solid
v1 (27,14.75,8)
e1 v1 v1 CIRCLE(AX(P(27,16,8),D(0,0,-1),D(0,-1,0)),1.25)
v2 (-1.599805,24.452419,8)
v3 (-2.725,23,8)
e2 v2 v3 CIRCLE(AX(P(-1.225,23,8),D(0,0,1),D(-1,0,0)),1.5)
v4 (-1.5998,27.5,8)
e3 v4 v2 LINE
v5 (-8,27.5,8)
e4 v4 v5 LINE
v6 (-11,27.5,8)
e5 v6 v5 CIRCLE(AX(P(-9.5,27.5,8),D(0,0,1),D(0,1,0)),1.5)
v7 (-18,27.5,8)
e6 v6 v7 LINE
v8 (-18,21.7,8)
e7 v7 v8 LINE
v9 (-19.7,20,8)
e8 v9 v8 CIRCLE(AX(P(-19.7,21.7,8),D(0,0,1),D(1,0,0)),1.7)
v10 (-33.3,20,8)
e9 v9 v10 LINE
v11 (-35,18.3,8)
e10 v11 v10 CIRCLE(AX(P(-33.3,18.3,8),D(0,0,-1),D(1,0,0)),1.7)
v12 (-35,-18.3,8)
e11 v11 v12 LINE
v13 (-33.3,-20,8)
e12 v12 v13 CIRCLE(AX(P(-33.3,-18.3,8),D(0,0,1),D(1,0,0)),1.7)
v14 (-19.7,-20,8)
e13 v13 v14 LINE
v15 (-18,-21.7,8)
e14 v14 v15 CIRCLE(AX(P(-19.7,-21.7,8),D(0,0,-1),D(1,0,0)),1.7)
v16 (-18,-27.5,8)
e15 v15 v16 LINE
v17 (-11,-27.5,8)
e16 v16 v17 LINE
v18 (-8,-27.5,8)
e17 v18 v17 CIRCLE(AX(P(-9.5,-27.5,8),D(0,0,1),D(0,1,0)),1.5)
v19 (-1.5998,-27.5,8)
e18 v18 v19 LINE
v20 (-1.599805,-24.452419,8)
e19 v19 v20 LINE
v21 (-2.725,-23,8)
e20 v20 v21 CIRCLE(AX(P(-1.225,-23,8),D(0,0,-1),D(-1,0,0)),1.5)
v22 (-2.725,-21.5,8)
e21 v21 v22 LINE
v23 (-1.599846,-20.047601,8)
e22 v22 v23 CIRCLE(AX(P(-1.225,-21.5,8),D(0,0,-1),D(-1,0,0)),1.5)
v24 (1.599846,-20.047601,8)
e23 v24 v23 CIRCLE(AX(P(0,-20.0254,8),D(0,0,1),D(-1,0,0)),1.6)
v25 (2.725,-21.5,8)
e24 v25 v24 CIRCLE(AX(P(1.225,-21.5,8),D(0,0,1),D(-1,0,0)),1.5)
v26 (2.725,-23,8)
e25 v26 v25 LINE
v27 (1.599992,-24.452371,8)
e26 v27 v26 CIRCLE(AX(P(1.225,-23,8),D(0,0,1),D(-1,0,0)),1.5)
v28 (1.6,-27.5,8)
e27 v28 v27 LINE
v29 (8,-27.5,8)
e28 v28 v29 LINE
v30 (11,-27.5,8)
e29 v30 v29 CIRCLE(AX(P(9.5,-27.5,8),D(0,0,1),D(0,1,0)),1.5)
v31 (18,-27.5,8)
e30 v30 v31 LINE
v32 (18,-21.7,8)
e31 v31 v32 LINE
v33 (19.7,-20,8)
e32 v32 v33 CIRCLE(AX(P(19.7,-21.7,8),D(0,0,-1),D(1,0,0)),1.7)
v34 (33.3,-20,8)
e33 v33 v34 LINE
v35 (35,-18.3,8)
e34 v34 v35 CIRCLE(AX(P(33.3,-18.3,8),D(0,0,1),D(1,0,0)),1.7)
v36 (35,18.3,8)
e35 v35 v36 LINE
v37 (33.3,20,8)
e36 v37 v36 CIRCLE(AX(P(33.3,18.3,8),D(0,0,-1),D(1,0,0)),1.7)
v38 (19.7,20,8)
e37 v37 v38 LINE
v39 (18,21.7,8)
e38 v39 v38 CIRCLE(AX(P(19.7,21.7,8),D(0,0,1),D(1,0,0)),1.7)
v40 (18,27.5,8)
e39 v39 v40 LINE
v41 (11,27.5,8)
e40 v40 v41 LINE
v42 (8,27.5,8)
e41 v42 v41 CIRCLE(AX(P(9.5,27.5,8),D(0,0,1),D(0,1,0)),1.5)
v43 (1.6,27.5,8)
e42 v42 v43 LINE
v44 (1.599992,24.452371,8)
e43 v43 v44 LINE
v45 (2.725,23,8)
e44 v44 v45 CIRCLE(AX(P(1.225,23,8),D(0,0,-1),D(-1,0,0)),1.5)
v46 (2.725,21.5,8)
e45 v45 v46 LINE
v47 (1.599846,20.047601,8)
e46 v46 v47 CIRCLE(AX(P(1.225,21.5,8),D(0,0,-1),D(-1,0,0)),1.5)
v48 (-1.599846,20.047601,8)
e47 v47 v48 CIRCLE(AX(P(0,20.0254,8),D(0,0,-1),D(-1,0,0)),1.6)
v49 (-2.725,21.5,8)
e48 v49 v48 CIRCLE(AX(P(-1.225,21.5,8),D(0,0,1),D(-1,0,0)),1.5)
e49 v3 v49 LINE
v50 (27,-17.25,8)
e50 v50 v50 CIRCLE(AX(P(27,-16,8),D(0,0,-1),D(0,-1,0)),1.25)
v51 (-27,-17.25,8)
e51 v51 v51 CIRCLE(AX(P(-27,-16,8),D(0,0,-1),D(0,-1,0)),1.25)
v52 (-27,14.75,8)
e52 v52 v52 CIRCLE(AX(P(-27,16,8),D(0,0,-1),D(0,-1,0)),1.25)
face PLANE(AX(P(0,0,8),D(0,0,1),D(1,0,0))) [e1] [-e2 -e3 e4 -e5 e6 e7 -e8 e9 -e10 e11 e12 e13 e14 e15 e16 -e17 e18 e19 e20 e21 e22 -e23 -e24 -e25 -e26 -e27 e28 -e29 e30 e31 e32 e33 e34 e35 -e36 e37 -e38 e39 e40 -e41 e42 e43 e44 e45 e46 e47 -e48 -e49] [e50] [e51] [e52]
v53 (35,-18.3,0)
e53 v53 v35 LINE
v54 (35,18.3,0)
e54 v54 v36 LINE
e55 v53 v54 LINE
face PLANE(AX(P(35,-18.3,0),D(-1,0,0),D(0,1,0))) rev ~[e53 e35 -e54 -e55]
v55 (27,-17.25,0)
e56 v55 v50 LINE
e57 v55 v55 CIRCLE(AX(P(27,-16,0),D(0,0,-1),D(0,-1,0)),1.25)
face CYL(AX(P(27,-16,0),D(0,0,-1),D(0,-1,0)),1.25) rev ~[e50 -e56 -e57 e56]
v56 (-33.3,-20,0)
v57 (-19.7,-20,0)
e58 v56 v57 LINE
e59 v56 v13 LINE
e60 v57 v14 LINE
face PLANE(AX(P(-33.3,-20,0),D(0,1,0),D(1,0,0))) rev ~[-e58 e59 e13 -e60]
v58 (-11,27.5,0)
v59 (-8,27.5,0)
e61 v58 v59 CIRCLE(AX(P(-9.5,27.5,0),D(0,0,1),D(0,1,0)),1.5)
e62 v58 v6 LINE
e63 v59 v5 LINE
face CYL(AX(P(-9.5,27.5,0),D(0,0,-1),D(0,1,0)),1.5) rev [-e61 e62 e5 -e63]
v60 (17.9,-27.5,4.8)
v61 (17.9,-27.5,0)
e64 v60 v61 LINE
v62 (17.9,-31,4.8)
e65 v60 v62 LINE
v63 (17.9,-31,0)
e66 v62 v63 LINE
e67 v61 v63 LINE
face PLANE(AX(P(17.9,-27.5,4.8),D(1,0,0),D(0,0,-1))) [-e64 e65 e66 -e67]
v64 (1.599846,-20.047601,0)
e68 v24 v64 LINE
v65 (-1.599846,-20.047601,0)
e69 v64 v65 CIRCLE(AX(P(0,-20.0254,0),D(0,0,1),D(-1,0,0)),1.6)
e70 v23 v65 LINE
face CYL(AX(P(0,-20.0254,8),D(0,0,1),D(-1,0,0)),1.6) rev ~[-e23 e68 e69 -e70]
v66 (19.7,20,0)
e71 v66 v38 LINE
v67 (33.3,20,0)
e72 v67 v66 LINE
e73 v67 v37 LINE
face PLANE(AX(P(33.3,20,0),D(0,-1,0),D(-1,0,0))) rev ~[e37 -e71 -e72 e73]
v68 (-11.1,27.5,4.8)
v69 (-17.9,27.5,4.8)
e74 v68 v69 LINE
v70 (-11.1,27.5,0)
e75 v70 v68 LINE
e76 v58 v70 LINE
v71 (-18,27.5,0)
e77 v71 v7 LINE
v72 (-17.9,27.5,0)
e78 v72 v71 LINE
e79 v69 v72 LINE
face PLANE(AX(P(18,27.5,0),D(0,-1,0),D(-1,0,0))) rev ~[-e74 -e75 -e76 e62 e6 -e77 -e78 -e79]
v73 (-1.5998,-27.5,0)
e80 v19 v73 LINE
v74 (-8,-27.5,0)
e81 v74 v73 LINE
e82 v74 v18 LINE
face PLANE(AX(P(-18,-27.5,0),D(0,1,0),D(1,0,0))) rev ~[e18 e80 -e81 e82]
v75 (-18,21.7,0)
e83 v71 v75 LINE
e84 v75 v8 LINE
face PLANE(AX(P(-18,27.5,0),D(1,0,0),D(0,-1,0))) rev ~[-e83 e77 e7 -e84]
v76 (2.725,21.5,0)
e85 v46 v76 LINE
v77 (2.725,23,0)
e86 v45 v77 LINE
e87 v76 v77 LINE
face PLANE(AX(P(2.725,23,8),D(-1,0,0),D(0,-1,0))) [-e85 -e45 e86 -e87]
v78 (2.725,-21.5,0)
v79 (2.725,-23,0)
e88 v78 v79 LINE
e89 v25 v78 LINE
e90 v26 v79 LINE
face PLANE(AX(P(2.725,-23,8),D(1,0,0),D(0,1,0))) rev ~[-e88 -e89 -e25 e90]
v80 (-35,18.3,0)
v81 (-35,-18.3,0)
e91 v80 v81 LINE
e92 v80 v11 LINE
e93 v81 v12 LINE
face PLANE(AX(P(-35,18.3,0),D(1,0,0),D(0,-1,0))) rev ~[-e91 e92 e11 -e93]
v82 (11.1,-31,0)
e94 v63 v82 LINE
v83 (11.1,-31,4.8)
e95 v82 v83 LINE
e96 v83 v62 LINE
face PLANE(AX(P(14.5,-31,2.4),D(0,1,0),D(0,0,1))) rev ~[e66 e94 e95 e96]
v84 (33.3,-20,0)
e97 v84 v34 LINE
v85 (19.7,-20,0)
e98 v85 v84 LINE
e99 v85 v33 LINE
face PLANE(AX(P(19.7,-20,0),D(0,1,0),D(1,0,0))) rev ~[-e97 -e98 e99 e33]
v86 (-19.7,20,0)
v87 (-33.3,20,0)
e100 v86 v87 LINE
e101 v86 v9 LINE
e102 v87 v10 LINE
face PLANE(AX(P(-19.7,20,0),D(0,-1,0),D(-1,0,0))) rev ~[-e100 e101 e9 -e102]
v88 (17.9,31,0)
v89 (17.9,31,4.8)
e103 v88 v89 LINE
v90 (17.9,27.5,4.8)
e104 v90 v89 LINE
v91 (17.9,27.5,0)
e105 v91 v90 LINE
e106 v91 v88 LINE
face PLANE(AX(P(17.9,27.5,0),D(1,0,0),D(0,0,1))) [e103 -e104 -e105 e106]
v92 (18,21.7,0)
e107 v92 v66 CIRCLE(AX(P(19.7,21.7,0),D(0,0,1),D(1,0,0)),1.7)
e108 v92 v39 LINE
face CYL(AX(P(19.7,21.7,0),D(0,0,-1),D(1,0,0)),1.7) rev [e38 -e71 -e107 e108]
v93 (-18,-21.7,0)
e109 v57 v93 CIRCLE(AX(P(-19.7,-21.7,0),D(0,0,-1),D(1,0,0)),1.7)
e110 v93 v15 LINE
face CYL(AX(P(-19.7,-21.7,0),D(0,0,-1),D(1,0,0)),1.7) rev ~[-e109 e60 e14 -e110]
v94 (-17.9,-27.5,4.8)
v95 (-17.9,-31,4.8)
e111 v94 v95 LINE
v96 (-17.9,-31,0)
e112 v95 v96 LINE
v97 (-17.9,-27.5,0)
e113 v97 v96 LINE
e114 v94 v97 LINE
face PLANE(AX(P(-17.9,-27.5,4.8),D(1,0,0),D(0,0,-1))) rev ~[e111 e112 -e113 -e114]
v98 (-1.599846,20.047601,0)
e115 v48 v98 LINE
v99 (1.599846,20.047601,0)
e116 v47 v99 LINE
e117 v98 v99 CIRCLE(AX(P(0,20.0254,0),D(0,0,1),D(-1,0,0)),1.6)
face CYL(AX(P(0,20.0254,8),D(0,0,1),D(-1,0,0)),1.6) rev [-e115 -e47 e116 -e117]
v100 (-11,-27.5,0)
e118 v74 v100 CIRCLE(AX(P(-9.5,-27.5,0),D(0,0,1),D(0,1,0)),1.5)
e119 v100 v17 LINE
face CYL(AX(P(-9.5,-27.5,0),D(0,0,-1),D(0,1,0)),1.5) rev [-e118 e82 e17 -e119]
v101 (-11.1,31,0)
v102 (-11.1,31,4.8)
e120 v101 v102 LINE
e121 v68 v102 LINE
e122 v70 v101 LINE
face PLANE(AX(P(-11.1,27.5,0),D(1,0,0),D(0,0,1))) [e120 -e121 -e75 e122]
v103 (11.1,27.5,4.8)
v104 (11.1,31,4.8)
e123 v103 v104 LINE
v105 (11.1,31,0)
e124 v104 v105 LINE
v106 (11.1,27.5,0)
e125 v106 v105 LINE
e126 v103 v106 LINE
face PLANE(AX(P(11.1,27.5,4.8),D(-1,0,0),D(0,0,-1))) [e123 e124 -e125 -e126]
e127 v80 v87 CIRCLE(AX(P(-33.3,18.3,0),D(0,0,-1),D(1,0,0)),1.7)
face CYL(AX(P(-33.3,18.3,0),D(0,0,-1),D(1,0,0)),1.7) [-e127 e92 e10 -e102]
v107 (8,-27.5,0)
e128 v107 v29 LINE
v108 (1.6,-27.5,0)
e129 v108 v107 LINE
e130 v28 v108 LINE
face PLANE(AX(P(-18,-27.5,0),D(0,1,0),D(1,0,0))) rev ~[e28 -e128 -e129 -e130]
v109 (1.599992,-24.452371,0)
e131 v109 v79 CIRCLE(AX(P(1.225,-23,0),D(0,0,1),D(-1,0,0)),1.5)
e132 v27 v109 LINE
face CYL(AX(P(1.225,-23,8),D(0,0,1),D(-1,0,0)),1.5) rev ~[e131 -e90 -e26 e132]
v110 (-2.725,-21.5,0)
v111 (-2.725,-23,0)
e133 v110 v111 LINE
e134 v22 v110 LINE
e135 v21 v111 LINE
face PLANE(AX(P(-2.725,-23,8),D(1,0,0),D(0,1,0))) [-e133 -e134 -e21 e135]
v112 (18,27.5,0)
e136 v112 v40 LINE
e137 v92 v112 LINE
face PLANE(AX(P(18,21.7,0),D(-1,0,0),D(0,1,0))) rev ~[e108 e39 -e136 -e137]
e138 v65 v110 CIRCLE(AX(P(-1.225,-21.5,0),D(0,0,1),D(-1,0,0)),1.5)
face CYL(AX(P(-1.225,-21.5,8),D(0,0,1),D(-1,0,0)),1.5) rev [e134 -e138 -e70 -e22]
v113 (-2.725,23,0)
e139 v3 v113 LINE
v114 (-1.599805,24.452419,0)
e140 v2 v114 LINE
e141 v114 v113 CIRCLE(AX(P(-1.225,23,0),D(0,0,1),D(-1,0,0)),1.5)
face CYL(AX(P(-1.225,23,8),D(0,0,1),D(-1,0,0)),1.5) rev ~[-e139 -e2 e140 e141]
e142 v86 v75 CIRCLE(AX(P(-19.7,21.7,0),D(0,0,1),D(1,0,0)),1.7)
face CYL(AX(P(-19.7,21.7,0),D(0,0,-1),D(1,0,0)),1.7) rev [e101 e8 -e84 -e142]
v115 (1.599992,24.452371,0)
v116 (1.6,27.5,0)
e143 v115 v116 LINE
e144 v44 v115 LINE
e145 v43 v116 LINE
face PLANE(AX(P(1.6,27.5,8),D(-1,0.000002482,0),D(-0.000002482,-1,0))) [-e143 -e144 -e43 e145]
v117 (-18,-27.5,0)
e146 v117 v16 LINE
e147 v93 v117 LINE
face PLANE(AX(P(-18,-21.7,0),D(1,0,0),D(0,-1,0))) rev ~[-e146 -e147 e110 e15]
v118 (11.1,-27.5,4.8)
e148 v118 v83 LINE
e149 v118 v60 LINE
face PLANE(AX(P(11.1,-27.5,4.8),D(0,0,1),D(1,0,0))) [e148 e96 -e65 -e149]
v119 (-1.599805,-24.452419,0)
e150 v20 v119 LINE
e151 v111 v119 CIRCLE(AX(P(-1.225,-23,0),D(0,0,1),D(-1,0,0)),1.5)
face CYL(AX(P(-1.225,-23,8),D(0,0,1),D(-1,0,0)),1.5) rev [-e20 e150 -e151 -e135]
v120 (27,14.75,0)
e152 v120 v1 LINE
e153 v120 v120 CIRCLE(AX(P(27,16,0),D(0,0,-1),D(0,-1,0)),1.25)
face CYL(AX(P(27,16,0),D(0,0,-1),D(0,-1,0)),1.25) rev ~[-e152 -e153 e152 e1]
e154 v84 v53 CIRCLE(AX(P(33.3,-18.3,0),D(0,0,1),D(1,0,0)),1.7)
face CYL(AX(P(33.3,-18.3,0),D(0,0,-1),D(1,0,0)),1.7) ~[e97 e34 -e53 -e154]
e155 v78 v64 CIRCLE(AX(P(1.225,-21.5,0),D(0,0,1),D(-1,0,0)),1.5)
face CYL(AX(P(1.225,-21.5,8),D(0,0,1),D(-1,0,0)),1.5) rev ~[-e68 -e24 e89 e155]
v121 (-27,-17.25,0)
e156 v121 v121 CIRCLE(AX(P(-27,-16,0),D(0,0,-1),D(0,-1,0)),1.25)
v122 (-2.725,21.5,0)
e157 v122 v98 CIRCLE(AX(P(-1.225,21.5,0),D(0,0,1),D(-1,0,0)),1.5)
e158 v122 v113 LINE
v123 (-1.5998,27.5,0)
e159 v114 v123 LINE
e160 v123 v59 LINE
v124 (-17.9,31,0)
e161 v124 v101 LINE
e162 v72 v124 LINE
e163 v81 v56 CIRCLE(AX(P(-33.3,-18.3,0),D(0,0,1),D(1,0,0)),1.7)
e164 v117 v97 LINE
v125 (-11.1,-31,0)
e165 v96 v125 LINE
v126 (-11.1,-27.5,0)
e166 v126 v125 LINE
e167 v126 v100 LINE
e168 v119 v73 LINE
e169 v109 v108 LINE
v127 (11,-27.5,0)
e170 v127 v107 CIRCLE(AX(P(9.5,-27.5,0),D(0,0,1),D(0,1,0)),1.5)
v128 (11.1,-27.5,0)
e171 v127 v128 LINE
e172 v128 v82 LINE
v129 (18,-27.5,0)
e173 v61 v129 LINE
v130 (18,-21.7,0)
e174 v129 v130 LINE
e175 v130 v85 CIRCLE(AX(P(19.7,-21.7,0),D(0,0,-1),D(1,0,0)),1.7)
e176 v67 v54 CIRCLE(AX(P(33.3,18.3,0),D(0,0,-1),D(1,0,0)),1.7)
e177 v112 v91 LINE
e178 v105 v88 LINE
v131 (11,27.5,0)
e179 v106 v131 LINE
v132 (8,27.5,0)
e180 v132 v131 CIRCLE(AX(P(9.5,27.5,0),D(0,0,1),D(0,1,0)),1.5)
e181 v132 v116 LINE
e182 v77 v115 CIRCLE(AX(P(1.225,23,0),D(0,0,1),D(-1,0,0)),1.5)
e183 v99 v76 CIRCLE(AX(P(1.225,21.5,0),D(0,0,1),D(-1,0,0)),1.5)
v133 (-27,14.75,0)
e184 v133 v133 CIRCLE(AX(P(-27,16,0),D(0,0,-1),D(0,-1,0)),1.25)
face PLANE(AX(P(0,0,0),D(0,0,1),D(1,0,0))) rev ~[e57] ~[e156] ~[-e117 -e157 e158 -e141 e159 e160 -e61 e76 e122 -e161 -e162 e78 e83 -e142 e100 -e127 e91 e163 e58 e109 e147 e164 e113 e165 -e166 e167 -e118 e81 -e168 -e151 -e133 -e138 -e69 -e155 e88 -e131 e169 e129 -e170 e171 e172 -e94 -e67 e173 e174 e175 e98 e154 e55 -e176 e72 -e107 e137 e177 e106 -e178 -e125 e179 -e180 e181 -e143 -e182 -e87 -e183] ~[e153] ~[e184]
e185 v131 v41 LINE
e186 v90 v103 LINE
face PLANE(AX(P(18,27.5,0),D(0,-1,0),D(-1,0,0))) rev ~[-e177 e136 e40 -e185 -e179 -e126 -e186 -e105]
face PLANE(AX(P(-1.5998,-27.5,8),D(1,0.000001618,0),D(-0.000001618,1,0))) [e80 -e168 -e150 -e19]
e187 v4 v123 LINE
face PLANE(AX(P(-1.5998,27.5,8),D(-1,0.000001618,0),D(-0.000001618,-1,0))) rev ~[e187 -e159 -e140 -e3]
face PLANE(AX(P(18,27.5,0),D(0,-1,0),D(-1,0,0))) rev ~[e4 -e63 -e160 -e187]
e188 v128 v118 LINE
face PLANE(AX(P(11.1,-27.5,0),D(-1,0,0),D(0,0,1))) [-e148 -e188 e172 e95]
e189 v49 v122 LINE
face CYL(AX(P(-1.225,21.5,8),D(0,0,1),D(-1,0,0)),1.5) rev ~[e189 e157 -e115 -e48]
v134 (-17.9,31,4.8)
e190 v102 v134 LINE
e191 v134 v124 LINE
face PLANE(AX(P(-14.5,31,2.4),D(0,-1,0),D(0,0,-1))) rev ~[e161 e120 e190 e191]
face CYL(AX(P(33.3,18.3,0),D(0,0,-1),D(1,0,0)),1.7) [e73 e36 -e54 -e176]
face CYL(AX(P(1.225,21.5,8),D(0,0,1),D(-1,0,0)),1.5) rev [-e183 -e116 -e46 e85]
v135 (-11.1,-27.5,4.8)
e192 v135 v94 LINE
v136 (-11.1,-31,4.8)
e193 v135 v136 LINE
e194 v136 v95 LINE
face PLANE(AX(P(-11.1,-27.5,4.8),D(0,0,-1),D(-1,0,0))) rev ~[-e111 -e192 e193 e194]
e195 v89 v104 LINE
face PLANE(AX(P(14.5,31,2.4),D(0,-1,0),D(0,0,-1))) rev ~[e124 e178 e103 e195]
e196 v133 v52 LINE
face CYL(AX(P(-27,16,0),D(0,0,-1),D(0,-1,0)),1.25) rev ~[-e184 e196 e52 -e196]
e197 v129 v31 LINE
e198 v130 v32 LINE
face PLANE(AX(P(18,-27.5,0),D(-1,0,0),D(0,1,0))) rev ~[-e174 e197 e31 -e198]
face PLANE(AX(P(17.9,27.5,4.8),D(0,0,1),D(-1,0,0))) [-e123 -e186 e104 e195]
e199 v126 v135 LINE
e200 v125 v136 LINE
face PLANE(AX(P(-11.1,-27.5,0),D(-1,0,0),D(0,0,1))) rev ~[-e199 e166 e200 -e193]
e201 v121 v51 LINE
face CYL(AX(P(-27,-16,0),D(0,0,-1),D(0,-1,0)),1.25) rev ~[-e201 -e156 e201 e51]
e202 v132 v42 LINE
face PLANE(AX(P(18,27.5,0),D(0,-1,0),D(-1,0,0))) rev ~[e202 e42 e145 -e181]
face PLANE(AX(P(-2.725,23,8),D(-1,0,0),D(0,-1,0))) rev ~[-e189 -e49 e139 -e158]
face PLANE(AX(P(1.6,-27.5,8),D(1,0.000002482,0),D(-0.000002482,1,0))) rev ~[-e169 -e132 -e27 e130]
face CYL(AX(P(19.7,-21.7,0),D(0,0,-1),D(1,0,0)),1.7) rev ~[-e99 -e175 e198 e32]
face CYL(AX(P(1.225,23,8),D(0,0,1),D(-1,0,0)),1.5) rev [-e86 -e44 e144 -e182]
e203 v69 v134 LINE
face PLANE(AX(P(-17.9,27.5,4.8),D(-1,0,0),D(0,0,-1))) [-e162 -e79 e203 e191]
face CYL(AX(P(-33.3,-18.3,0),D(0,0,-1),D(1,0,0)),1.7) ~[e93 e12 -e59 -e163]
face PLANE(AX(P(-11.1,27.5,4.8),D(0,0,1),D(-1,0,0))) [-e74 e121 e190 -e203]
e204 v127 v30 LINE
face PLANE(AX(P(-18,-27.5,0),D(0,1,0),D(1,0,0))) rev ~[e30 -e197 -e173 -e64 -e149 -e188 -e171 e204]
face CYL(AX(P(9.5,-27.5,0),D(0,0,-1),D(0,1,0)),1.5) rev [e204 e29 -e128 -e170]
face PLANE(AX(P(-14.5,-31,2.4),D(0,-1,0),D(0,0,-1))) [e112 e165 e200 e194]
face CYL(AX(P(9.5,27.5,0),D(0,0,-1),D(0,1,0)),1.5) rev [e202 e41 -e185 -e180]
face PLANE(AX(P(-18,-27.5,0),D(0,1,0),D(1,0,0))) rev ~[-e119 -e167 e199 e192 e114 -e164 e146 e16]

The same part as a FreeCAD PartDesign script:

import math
import FreeCAD as App
import Part
import Sketcher

V = App.Vector
Q = App.Units.Quantity

doc = App.newDocument("Part")
body = doc.addObject("PartDesign::Body", "Body")

sketch1 = body.newObject("Sketcher::SketchObject", "Sketch")
sketch1.AttachmentSupport = (doc.getObject("XY_Plane"), [""])
sketch1.MapMode = "FlatFace"
sketch1.addGeometry(Part.LineSegment(V(-18, -21.7, 0), V(-18, -27.5, 0)), False)
sketch1.addGeometry(Part.LineSegment(V(-18, -27.5, 0), V(18, -27.5, 0)), False)
sketch1.addGeometry(Part.LineSegment(V(18, -27.5, 0), V(18, -21.7, 0)), False)
sketch1.addGeometry(Part.ArcOfCircle(Part.Circle(V(19.7, -21.7, 0), V(0, 0, 1), 1.7), math.radians(90), math.radians(180)), False)
sketch1.addGeometry(Part.LineSegment(V(19.7, -20, 0), V(33.3, -20, 0)), False)
sketch1.addGeometry(Part.ArcOfCircle(Part.Circle(V(33.3, -18.3, 0), V(0, 0, 1), 1.7), math.radians(-90), math.radians(0)), False)
sketch1.addGeometry(Part.LineSegment(V(35, -18.3, 0), V(35, 18.3, 0)), False)
sketch1.addGeometry(Part.ArcOfCircle(Part.Circle(V(33.3, 18.3, 0), V(0, 0, 1), 1.7), math.radians(0), math.radians(90)), False)
sketch1.addGeometry(Part.LineSegment(V(33.3, 20, 0), V(19.7, 20, 0)), False)
sketch1.addGeometry(Part.ArcOfCircle(Part.Circle(V(19.7, 21.7, 0), V(0, 0, 1), 1.7), math.radians(180), math.radians(270)), False)
sketch1.addGeometry(Part.LineSegment(V(18, 21.7, 0), V(18, 27.5, 0)), False)
sketch1.addGeometry(Part.LineSegment(V(18, 27.5, 0), V(-18, 27.5, 0)), False)
sketch1.addGeometry(Part.LineSegment(V(-18, 27.5, 0), V(-18, 21.7, 0)), False)
sketch1.addGeometry(Part.ArcOfCircle(Part.Circle(V(-19.7, 21.7, 0), V(0, 0, 1), 1.7), math.radians(-90), math.radians(0)), False)
sketch1.addGeometry(Part.LineSegment(V(-19.7, 20, 0), V(-33.3, 20, 0)), False)
sketch1.addGeometry(Part.ArcOfCircle(Part.Circle(V(-33.3, 18.3, 0), V(0, 0, 1), 1.7), math.radians(90), math.radians(180)), False)
sketch1.addGeometry(Part.LineSegment(V(-35, 18.3, 0), V(-35, -18.3, 0)), False)
sketch1.addGeometry(Part.ArcOfCircle(Part.Circle(V(-33.3, -18.3, 0), V(0, 0, 1), 1.7), math.radians(180), math.radians(270)), False)
sketch1.addGeometry(Part.LineSegment(V(-33.3, -20, 0), V(-19.7, -20, 0)), False)
sketch1.addGeometry(Part.ArcOfCircle(Part.Circle(V(-19.7, -21.7, 0), V(0, 0, 1), 1.7), math.radians(0), math.radians(90)), False)
sketch1.addConstraint(Sketcher.Constraint("Coincident", 0, 2, 1, 1))
sketch1.addConstraint(Sketcher.Constraint("Coincident", 1, 2, 2, 1))
sketch1.addConstraint(Sketcher.Constraint("Tangent", 2, 2, 3, 2))
sketch1.addConstraint(Sketcher.Constraint("Tangent", 3, 1, 4, 1))
sketch1.addConstraint(Sketcher.Constraint("Tangent", 4, 2, 5, 1))
sketch1.addConstraint(Sketcher.Constraint("Tangent", 5, 2, 6, 1))
sketch1.addConstraint(Sketcher.Constraint("Tangent", 6, 2, 7, 1))
sketch1.addConstraint(Sketcher.Constraint("Tangent", 7, 2, 8, 1))
sketch1.addConstraint(Sketcher.Constraint("Tangent", 8, 2, 9, 2))
sketch1.addConstraint(Sketcher.Constraint("Tangent", 9, 1, 10, 1))
sketch1.addConstraint(Sketcher.Constraint("Coincident", 10, 2, 11, 1))
sketch1.addConstraint(Sketcher.Constraint("Coincident", 11, 2, 12, 1))
sketch1.addConstraint(Sketcher.Constraint("Tangent", 12, 2, 13, 2))
sketch1.addConstraint(Sketcher.Constraint("Tangent", 13, 1, 14, 1))
sketch1.addConstraint(Sketcher.Constraint("Tangent", 14, 2, 15, 1))
sketch1.addConstraint(Sketcher.Constraint("Tangent", 15, 2, 16, 1))
sketch1.addConstraint(Sketcher.Constraint("Tangent", 16, 2, 17, 1))
sketch1.addConstraint(Sketcher.Constraint("Tangent", 17, 2, 18, 1))
sketch1.addConstraint(Sketcher.Constraint("Tangent", 18, 2, 19, 2))
sketch1.addConstraint(Sketcher.Constraint("Tangent", 19, 1, 0, 1))
sketch1.addConstraint(Sketcher.Constraint("Vertical", 0))
sketch1.addConstraint(Sketcher.Constraint("Horizontal", 1))
sketch1.addConstraint(Sketcher.Constraint("Vertical", 2))
sketch1.addConstraint(Sketcher.Constraint("Horizontal", 4))
sketch1.addConstraint(Sketcher.Constraint("Vertical", 6))
sketch1.addConstraint(Sketcher.Constraint("Horizontal", 8))
sketch1.addConstraint(Sketcher.Constraint("Vertical", 10))
sketch1.addConstraint(Sketcher.Constraint("Horizontal", 11))
sketch1.addConstraint(Sketcher.Constraint("Vertical", 12))
sketch1.addConstraint(Sketcher.Constraint("Horizontal", 14))
sketch1.addConstraint(Sketcher.Constraint("Vertical", 16))
sketch1.addConstraint(Sketcher.Constraint("Horizontal", 18))
sketch1.addConstraint(Sketcher.Constraint("Equal", 3, 5))
sketch1.addConstraint(Sketcher.Constraint("Equal", 5, 7))
sketch1.addConstraint(Sketcher.Constraint("Equal", 7, 9))
sketch1.addConstraint(Sketcher.Constraint("Equal", 9, 13))
sketch1.addConstraint(Sketcher.Constraint("Equal", 13, 15))
sketch1.addConstraint(Sketcher.Constraint("Equal", 15, 17))
sketch1.addConstraint(Sketcher.Constraint("Equal", 17, 19))
sketch1.addConstraint(Sketcher.Constraint("Symmetric", 3, 3, 13, 3, -1, 1))
sketch1.addConstraint(Sketcher.Constraint("Symmetric", 7, 3, 17, 3, -1, 1))
sketch1.addConstraint(Sketcher.Constraint("Symmetric", 0, 2, 10, 2, -1, 1))
sketch1.addConstraint(Sketcher.Constraint("Symmetric", 9, 3, 13, 3, -2))
sketch1.addConstraint(Sketcher.Constraint("Radius", 3, Q("1.7 mm")))
sketch1.addConstraint(Sketcher.Constraint("DistanceX", 1, 1, 1, 2, Q("36 mm")))
sketch1.addConstraint(Sketcher.Constraint("DistanceX", 4, 1, 4, 2, Q("13.6 mm")))
sketch1.addConstraint(Sketcher.Constraint("DistanceY", 0, 2, 0, 1, Q("5.8 mm")))
sketch1.addConstraint(Sketcher.Constraint("DistanceY", 6, 1, 6, 2, Q("36.6 mm")))
pad1 = body.newObject("PartDesign::Pad", "Pad")
pad1.Profile = sketch1
pad1.Length = 8

sketch2 = body.newObject("Sketcher::SketchObject", "Sketch001")
sketch2.AttachmentSupport = (doc.getObject("XZ_Plane"), [""])
sketch2.MapMode = "FlatFace"
sketch2.AttachmentOffset = App.Placement(V(0, 0, 27.5), App.Rotation())
sketch2.addGeometry(Part.LineSegment(V(-11.1, 0, 0), V(-11.1, 4.8, 0)), False)
sketch2.addGeometry(Part.LineSegment(V(-11.1, 4.8, 0), V(-17.9, 4.8, 0)), False)
sketch2.addGeometry(Part.LineSegment(V(-17.9, 4.8, 0), V(-17.9, 0, 0)), False)
sketch2.addGeometry(Part.LineSegment(V(-17.9, 0, 0), V(-11.1, 0, 0)), False)
sketch2.addGeometry(Part.LineSegment(V(17.9, 4.8, 0), V(11.1, 4.8, 0)), False)
sketch2.addGeometry(Part.LineSegment(V(11.1, 4.8, 0), V(11.1, 0, 0)), False)
sketch2.addGeometry(Part.LineSegment(V(11.1, 0, 0), V(17.9, 0, 0)), False)
sketch2.addGeometry(Part.LineSegment(V(17.9, 0, 0), V(17.9, 4.8, 0)), False)
sketch2.addConstraint(Sketcher.Constraint("Coincident", 0, 2, 1, 1))
sketch2.addConstraint(Sketcher.Constraint("Coincident", 1, 2, 2, 1))
sketch2.addConstraint(Sketcher.Constraint("Coincident", 2, 2, 3, 1))
sketch2.addConstraint(Sketcher.Constraint("Coincident", 3, 2, 0, 1))
sketch2.addConstraint(Sketcher.Constraint("Coincident", 4, 2, 5, 1))
sketch2.addConstraint(Sketcher.Constraint("Coincident", 5, 2, 6, 1))
sketch2.addConstraint(Sketcher.Constraint("Coincident", 6, 2, 7, 1))
sketch2.addConstraint(Sketcher.Constraint("Coincident", 7, 2, 4, 1))
sketch2.addConstraint(Sketcher.Constraint("Vertical", 0))
sketch2.addConstraint(Sketcher.Constraint("Horizontal", 1))
sketch2.addConstraint(Sketcher.Constraint("Vertical", 2))
sketch2.addConstraint(Sketcher.Constraint("Horizontal", 3))
sketch2.addConstraint(Sketcher.Constraint("Horizontal", 4))
sketch2.addConstraint(Sketcher.Constraint("Vertical", 5))
sketch2.addConstraint(Sketcher.Constraint("Horizontal", 6))
sketch2.addConstraint(Sketcher.Constraint("Vertical", 7))
sketch2.addConstraint(Sketcher.Constraint("Symmetric", 3, 2, 5, 2, -1, 1))
sketch2.addConstraint(Sketcher.Constraint("Symmetric", 2, 2, 6, 2, -2))
sketch2.addConstraint(Sketcher.Constraint("Horizontal", 1, 2, 4, 2))
sketch2.addConstraint(Sketcher.Constraint("DistanceX", 1, 2, 1, 1, Q("6.8 mm")))
sketch2.addConstraint(Sketcher.Constraint("DistanceY", 0, 1, 0, 2, Q("4.8 mm")))
sketch2.addConstraint(Sketcher.Constraint("DistanceX", 1, 2, 4, 2, Q("29 mm")))
pad2 = body.newObject("PartDesign::Pad", "Pad001")
pad2.Profile = sketch2
pad2.Length = 3.5

sketch3 = body.newObject("Sketcher::SketchObject", "Sketch002")
sketch3.AttachmentSupport = (doc.getObject("XZ_Plane"), [""])
sketch3.MapMode = "FlatFace"
sketch3.AttachmentOffset = App.Placement(V(0, 0, -27.5), App.Rotation())
sketch3.addGeometry(Part.LineSegment(V(11.1, 4.8, 0), V(17.9, 4.8, 0)), False)
sketch3.addGeometry(Part.LineSegment(V(17.9, 4.8, 0), V(17.9, 0, 0)), False)
sketch3.addGeometry(Part.LineSegment(V(17.9, 0, 0), V(11.1, 0, 0)), False)
sketch3.addGeometry(Part.LineSegment(V(11.1, 0, 0), V(11.1, 4.8, 0)), False)
sketch3.addConstraint(Sketcher.Constraint("Coincident", 0, 2, 1, 1))
sketch3.addConstraint(Sketcher.Constraint("Coincident", 1, 2, 2, 1))
sketch3.addConstraint(Sketcher.Constraint("Coincident", 2, 2, 3, 1))
sketch3.addConstraint(Sketcher.Constraint("Coincident", 3, 2, 0, 1))
sketch3.addConstraint(Sketcher.Constraint("Horizontal", 0))
sketch3.addConstraint(Sketcher.Constraint("Vertical", 1))
sketch3.addConstraint(Sketcher.Constraint("Horizontal", 2))
sketch3.addConstraint(Sketcher.Constraint("Vertical", 3))
sketch3.addConstraint(Sketcher.Constraint("PointOnObject", 1, 2, -1))
sketch3.addConstraint(Sketcher.Constraint("DistanceX", 0, 1, 0, 2, Q("6.8 mm")))
sketch3.addConstraint(Sketcher.Constraint("DistanceY", 1, 2, 1, 1, Q("4.8 mm")))
sketch3.addConstraint(Sketcher.Constraint("DistanceX", -1, 1, 0, 2, Q("17.9 mm")))
pad3 = body.newObject("PartDesign::Pad", "Pad002")
pad3.Profile = sketch3
pad3.Length = 3.5
pad3.Reversed = True

sketch4 = body.newObject("Sketcher::SketchObject", "Sketch003")
sketch4.AttachmentSupport = (doc.getObject("XY_Plane"), [""])
sketch4.MapMode = "FlatFace"
sketch4.addGeometry(Part.ArcOfCircle(Part.Circle(V(-9.5, -27.5, 0), V(0, 0, 1), 1.5), math.radians(0), math.radians(180)), False)
sketch4.addGeometry(Part.LineSegment(V(-8, -27.5, 0), V(-11, -27.5, 0)), False)
sketch4.addGeometry(Part.ArcOfCircle(Part.Circle(V(9.5, -27.5, 0), V(0, 0, 1), 1.5), math.radians(0), math.radians(180)), False)
sketch4.addGeometry(Part.LineSegment(V(11, -27.5, 0), V(8, -27.5, 0)), False)
sketch4.addGeometry(Part.ArcOfCircle(Part.Circle(V(-9.5, 27.5, 0), V(0, 0, 1), 1.5), math.radians(180), math.radians(360)), False)
sketch4.addGeometry(Part.LineSegment(V(-11, 27.5, 0), V(-8, 27.5, 0)), False)
sketch4.addGeometry(Part.ArcOfCircle(Part.Circle(V(9.5, 27.5, 0), V(0, 0, 1), 1.5), math.radians(180), math.radians(360)), False)
sketch4.addGeometry(Part.LineSegment(V(8, 27.5, 0), V(11, 27.5, 0)), False)
sketch4.addConstraint(Sketcher.Constraint("Coincident", 0, 1, 1, 1))
sketch4.addConstraint(Sketcher.Constraint("Coincident", 1, 2, 0, 2))
sketch4.addConstraint(Sketcher.Constraint("Coincident", 2, 1, 3, 1))
sketch4.addConstraint(Sketcher.Constraint("Coincident", 3, 2, 2, 2))
sketch4.addConstraint(Sketcher.Constraint("Coincident", 4, 1, 5, 1))
sketch4.addConstraint(Sketcher.Constraint("Coincident", 5, 2, 4, 2))
sketch4.addConstraint(Sketcher.Constraint("Coincident", 6, 1, 7, 1))
sketch4.addConstraint(Sketcher.Constraint("Coincident", 7, 2, 6, 2))
sketch4.addConstraint(Sketcher.Constraint("Horizontal", 1))
sketch4.addConstraint(Sketcher.Constraint("Horizontal", 3))
sketch4.addConstraint(Sketcher.Constraint("Horizontal", 5))
sketch4.addConstraint(Sketcher.Constraint("Horizontal", 7))
sketch4.addConstraint(Sketcher.Constraint("Equal", 0, 2))
sketch4.addConstraint(Sketcher.Constraint("Equal", 2, 4))
sketch4.addConstraint(Sketcher.Constraint("Equal", 4, 6))
sketch4.addConstraint(Sketcher.Constraint("Symmetric", 2, 3, 4, 3, -1, 1))
sketch4.addConstraint(Sketcher.Constraint("Symmetric", 0, 3, 6, 3, -1, 1))
sketch4.addConstraint(Sketcher.Constraint("Symmetric", 0, 3, 2, 3, -2))
sketch4.addConstraint(Sketcher.Constraint("Horizontal", 2, 3, 0, 1))
sketch4.addConstraint(Sketcher.Constraint("Horizontal", 1, 2, 2, 1))
sketch4.addConstraint(Sketcher.Constraint("Horizontal", 6, 3, 4, 1))
sketch4.addConstraint(Sketcher.Constraint("Horizontal", 5, 2, 6, 1))
sketch4.addConstraint(Sketcher.Constraint("Radius", 0, Q("1.5 mm")))
sketch4.addConstraint(Sketcher.Constraint("DistanceX", 0, 1, -1, 1, Q("8 mm")))
sketch4.addConstraint(Sketcher.Constraint("DistanceY", 0, 3, 4, 3, Q("55 mm")))
pocket1 = body.newObject("PartDesign::Pocket", "Pocket")
pocket1.Profile = sketch4
pocket1.Length = 8
pocket1.Reversed = True

sketch5 = body.newObject("Sketcher::SketchObject", "Sketch004")
sketch5.AttachmentSupport = (doc.getObject("XZ_Plane"), [""])
sketch5.MapMode = "FlatFace"
sketch5.AttachmentOffset = App.Placement(V(0, 0, -27.5), App.Rotation())
sketch5.addGeometry(Part.LineSegment(V(-17.9, 4.8, 0), V(-11.1, 4.8, 0)), False)
sketch5.addGeometry(Part.LineSegment(V(-11.1, 4.8, 0), V(-11.1, 0, 0)), False)
sketch5.addGeometry(Part.LineSegment(V(-11.1, 0, 0), V(-17.9, 0, 0)), False)
sketch5.addGeometry(Part.LineSegment(V(-17.9, 0, 0), V(-17.9, 4.8, 0)), False)
sketch5.addConstraint(Sketcher.Constraint("Coincident", 0, 2, 1, 1))
sketch5.addConstraint(Sketcher.Constraint("Coincident", 1, 2, 2, 1))
sketch5.addConstraint(Sketcher.Constraint("Coincident", 2, 2, 3, 1))
sketch5.addConstraint(Sketcher.Constraint("Coincident", 3, 2, 0, 1))
sketch5.addConstraint(Sketcher.Constraint("Horizontal", 0))
sketch5.addConstraint(Sketcher.Constraint("Vertical", 1))
sketch5.addConstraint(Sketcher.Constraint("Horizontal", 2))
sketch5.addConstraint(Sketcher.Constraint("Vertical", 3))
sketch5.addConstraint(Sketcher.Constraint("PointOnObject", 1, 2, -1))
sketch5.addConstraint(Sketcher.Constraint("DistanceX", 0, 1, 0, 2, Q("6.8 mm")))
sketch5.addConstraint(Sketcher.Constraint("DistanceY", 1, 2, 1, 1, Q("4.8 mm")))
sketch5.addConstraint(Sketcher.Constraint("DistanceX", 0, 2, -1, 1, Q("11.1 mm")))
pad4 = body.newObject("PartDesign::Pad", "Pad003")
pad4.Profile = sketch5
pad4.Length = 3.5
pad4.Reversed = True

sketch6 = body.newObject("Sketcher::SketchObject", "Sketch005")
sketch6.AttachmentSupport = (doc.getObject("XY_Plane"), [""])
sketch6.MapMode = "FlatFace"
sketch6.AttachmentOffset = App.Placement(V(0, 0, 8), App.Rotation())
sketch6.addGeometry(Part.ArcOfCircle(Part.Circle(V(1.225, -21.5, 0), V(0, 0, 1), 1.5), math.radians(0), math.radians(75.530183)), False)
sketch6.addGeometry(Part.ArcOfCircle(Part.Circle(V(0, -20.0254, 0), V(0, 0, 1), 1.599954), math.radians(-0.795027), math.radians(180.795027)), False)
sketch6.addGeometry(Part.ArcOfCircle(Part.Circle(V(-1.225, -21.5, 0), V(0, 0, 1), 1.5), math.radians(104.469817), math.radians(180)), False)
sketch6.addGeometry(Part.LineSegment(V(-2.725, -21.5, 0), V(-2.725, -23, 0)), False)
sketch6.addGeometry(Part.ArcOfCircle(Part.Circle(V(-1.225, -23, 0), V(0, 0, 1), 1.49998), math.radians(180), math.radians(255.530183)), False)
sketch6.addGeometry(Part.LineSegment(V(-1.5998, -24.4524, 0), V(-1.5998, -27.5, 0)), False)
sketch6.addGeometry(Part.LineSegment(V(-1.5998, -27.5, 0), V(1.6, -27.5, 0)), False)
sketch6.addGeometry(Part.LineSegment(V(1.6, -27.5, 0), V(1.6, -24.4524, 0)), False)
sketch6.addGeometry(Part.ArcOfCircle(Part.Circle(V(1.225, -23, 0), V(0, 0, 1), 1.50003), math.radians(-75.522786), math.radians(0)), False)
sketch6.addGeometry(Part.LineSegment(V(2.725, -23, 0), V(2.725, -21.5, 0)), False)
sketch6.addGeometry(Part.ArcOfCircle(Part.Circle(V(0, 20.0254, 0), V(0, 0, 1), 1.599954), math.radians(179.204973), math.radians(360.795027)), False)
sketch6.addGeometry(Part.ArcOfCircle(Part.Circle(V(1.225, 21.5, 0), V(0, 0, 1), 1.5), math.radians(-75.530183), math.radians(0)), False)
sketch6.addGeometry(Part.LineSegment(V(2.725, 21.5, 0), V(2.725, 23, 0)), False)
sketch6.addGeometry(Part.ArcOfCircle(Part.Circle(V(1.225, 23, 0), V(0, 0, 1), 1.50003), math.radians(0), math.radians(75.522786)), False)
sketch6.addGeometry(Part.LineSegment(V(1.6, 24.4524, 0), V(1.6, 27.5, 0)), False)
sketch6.addGeometry(Part.LineSegment(V(1.6, 27.5, 0), V(-1.5998, 27.5, 0)), False)
sketch6.addGeometry(Part.LineSegment(V(-1.5998, 27.5, 0), V(-1.5998, 24.4524, 0)), False)
sketch6.addGeometry(Part.ArcOfCircle(Part.Circle(V(-1.225, 23, 0), V(0, 0, 1), 1.49998), math.radians(104.469817), math.radians(180)), False)
sketch6.addGeometry(Part.LineSegment(V(-2.725, 23, 0), V(-2.725, 21.5, 0)), False)
sketch6.addGeometry(Part.ArcOfCircle(Part.Circle(V(-1.225, 21.5, 0), V(0, 0, 1), 1.5), math.radians(180), math.radians(255.530183)), False)
sketch6.addConstraint(Sketcher.Constraint("Coincident", 0, 2, 1, 1))
sketch6.addConstraint(Sketcher.Constraint("Coincident", 1, 2, 2, 1))
sketch6.addConstraint(Sketcher.Constraint("Coincident", 2, 2, 3, 1))
sketch6.addConstraint(Sketcher.Constraint("Coincident", 3, 2, 4, 1))
sketch6.addConstraint(Sketcher.Constraint("Coincident", 4, 2, 5, 1))
sketch6.addConstraint(Sketcher.Constraint("Coincident", 5, 2, 6, 1))
sketch6.addConstraint(Sketcher.Constraint("Coincident", 6, 2, 7, 1))
sketch6.addConstraint(Sketcher.Constraint("Coincident", 7, 2, 8, 1))
sketch6.addConstraint(Sketcher.Constraint("Coincident", 8, 2, 9, 1))
sketch6.addConstraint(Sketcher.Constraint("Coincident", 9, 2, 0, 1))
sketch6.addConstraint(Sketcher.Constraint("Coincident", 10, 2, 11, 1))
sketch6.addConstraint(Sketcher.Constraint("Coincident", 11, 2, 12, 1))
sketch6.addConstraint(Sketcher.Constraint("Coincident", 12, 2, 13, 1))
sketch6.addConstraint(Sketcher.Constraint("Coincident", 13, 2, 14, 1))
sketch6.addConstraint(Sketcher.Constraint("Coincident", 14, 2, 15, 1))
sketch6.addConstraint(Sketcher.Constraint("Coincident", 15, 2, 16, 1))
sketch6.addConstraint(Sketcher.Constraint("Coincident", 16, 2, 17, 1))
sketch6.addConstraint(Sketcher.Constraint("Coincident", 17, 2, 18, 1))
sketch6.addConstraint(Sketcher.Constraint("Coincident", 18, 2, 19, 1))
sketch6.addConstraint(Sketcher.Constraint("Coincident", 19, 2, 10, 1))
sketch6.addConstraint(Sketcher.Constraint("Vertical", 3))
sketch6.addConstraint(Sketcher.Constraint("Vertical", 5))
sketch6.addConstraint(Sketcher.Constraint("Horizontal", 6))
sketch6.addConstraint(Sketcher.Constraint("Vertical", 7))
sketch6.addConstraint(Sketcher.Constraint("Vertical", 9))
sketch6.addConstraint(Sketcher.Constraint("Vertical", 12))
sketch6.addConstraint(Sketcher.Constraint("Vertical", 14))
sketch6.addConstraint(Sketcher.Constraint("Horizontal", 15))
sketch6.addConstraint(Sketcher.Constraint("Vertical", 16))
sketch6.addConstraint(Sketcher.Constraint("Vertical", 18))
sketch6.addConstraint(Sketcher.Constraint("PointOnObject", 1, 3, -2))
sketch6.addConstraint(Sketcher.Constraint("PointOnObject", 10, 3, -2))
sketch6.addConstraint(Sketcher.Constraint("Radius", 0, Q("1.5 mm")))
sketch6.addConstraint(Sketcher.Constraint("Radius", 1, Q("1.6 mm")))
sketch6.addConstraint(Sketcher.Constraint("Radius", 2, Q("1.5 mm")))
sketch6.addConstraint(Sketcher.Constraint("Radius", 4, Q("1.5 mm")))
sketch6.addConstraint(Sketcher.Constraint("Radius", 8, Q("1.5 mm")))
sketch6.addConstraint(Sketcher.Constraint("Radius", 10, Q("1.6 mm")))
sketch6.addConstraint(Sketcher.Constraint("Radius", 11, Q("1.5 mm")))
sketch6.addConstraint(Sketcher.Constraint("Radius", 13, Q("1.5 mm")))
sketch6.addConstraint(Sketcher.Constraint("Radius", 17, Q("1.5 mm")))
sketch6.addConstraint(Sketcher.Constraint("Radius", 19, Q("1.5 mm")))
sketch6.addConstraint(Sketcher.Constraint("DistanceY", 3, 2, 3, 1, Q("1.5 mm")))
sketch6.addConstraint(Sketcher.Constraint("DistanceY", 9, 1, 9, 2, Q("1.5 mm")))
sketch6.addConstraint(Sketcher.Constraint("DistanceY", 12, 1, 12, 2, Q("1.5 mm")))
sketch6.addConstraint(Sketcher.Constraint("DistanceY", 18, 2, 18, 1, Q("1.5 mm")))
sketch6.addConstraint(Sketcher.Constraint("DistanceY", 4, 3, -1, 1, Q("23 mm")))
sketch6.addConstraint(Sketcher.Constraint("DistanceY", 8, 3, -1, 1, Q("23 mm")))
sketch6.addConstraint(Sketcher.Constraint("DistanceY", -1, 1, 13, 3, Q("23 mm")))
sketch6.addConstraint(Sketcher.Constraint("DistanceY", -1, 1, 17, 3, Q("23 mm")))
sketch6.addConstraint(Sketcher.Constraint("DistanceY", 3, 2, -1, 1, Q("23 mm")))
sketch6.addConstraint(Sketcher.Constraint("DistanceY", 8, 2, -1, 1, Q("23 mm")))
sketch6.addConstraint(Sketcher.Constraint("DistanceY", -1, 1, 12, 2, Q("23 mm")))
sketch6.addConstraint(Sketcher.Constraint("DistanceY", -1, 1, 17, 2, Q("23 mm")))
sketch6.addConstraint(Sketcher.Constraint("DistanceY", 0, 3, 11, 3, Q("43 mm")))
sketch6.addConstraint(Sketcher.Constraint("DistanceY", 2, 3, 11, 3, Q("43 mm")))
sketch6.addConstraint(Sketcher.Constraint("DistanceY", 5, 2, 2, 3, Q("6 mm")))
sketch6.addConstraint(Sketcher.Constraint("DistanceY", 11, 3, 14, 2, Q("6 mm")))
sketch6.addConstraint(Sketcher.Constraint("DistanceY", 19, 3, 15, 2, Q("6 mm")))
sketch6.addConstraint(Sketcher.Constraint("DistanceY", 0, 3, -1, 1, Q("21.5 mm")))
sketch6.addConstraint(Sketcher.Constraint("DistanceX", -1, 1, 6, 2, Q("1.6 mm")))
sketch6.addConstraint(Sketcher.Constraint("DistanceX", -1, 1, 13, 2, Q("1.6 mm")))
sketch6.addConstraint(Sketcher.Constraint("DistanceX", 2, 3, 0, 3, Q("2.45 mm")))
sketch6.addConstraint(Sketcher.Constraint("DistanceX", 2, 3, 11, 3, Q("2.45 mm")))
sketch6.addConstraint(Sketcher.Constraint("DistanceX", 17, 3, 13, 3, Q("2.45 mm")))
sketch6.addConstraint(Sketcher.Constraint("DistanceX", 6, 1, 6, 2, Q("3.1998 mm")))
sketch6.addConstraint(Sketcher.Constraint("DistanceX", 15, 2, 15, 1, Q("3.1998 mm")))
sketch6.addConstraint(Sketcher.Constraint("DistanceY", 5, 2, 5, 1, Q("3.0476 mm")))
sketch6.addConstraint(Sketcher.Constraint("DistanceY", 1, 3, -1, 1, Q("20.0254 mm")))
sketch6.addConstraint(Sketcher.Constraint("DistanceY", -1, 1, 10, 3, Q("20.0254 mm")))
pocket2 = body.newObject("PartDesign::Pocket", "Pocket001")
pocket2.Profile = sketch6
pocket2.Type = "UpToFirst"

sketch7 = body.newObject("Sketcher::SketchObject", "Sketch006")
sketch7.AttachmentSupport = (doc.getObject("XY_Plane"), [""])
sketch7.MapMode = "FlatFace"
sketch7.addGeometry(Part.Circle(V(-27, -16, 0), V(0, 0, 1), 1.2), False)
sketch7.addGeometry(Part.Circle(V(-27, 16, 0), V(0, 0, 1), 1.2), False)
sketch7.addGeometry(Part.Circle(V(27, 16, 0), V(0, 0, 1), 1.2), False)
sketch7.addGeometry(Part.Circle(V(27, -16, 0), V(0, 0, 1), 1.2), False)
sketch7.addConstraint(Sketcher.Constraint("Equal", 0, 1))
sketch7.addConstraint(Sketcher.Constraint("Equal", 1, 2))
sketch7.addConstraint(Sketcher.Constraint("Equal", 2, 3))
sketch7.addConstraint(Sketcher.Constraint("Symmetric", 0, 3, 2, 3, -1, 1))
sketch7.addConstraint(Sketcher.Constraint("Symmetric", 1, 3, 3, 3, -1, 1))
sketch7.addConstraint(Sketcher.Constraint("Symmetric", 1, 3, 2, 3, -2))
sketch7.addConstraint(Sketcher.Constraint("Diameter", 0, Q("2.5 mm")))
sketch7.addConstraint(Sketcher.Constraint("DistanceX", 0, 3, -1, 1, Q("27 mm")))
sketch7.addConstraint(Sketcher.Constraint("DistanceY", 0, 3, -1, 1, Q("16 mm")))
pocket3 = body.newObject("PartDesign::Pocket", "Pocket002")
pocket3.Profile = sketch7
pocket3.Type = "ThroughAll"
pocket3.Reversed = True

doc.recompute()
